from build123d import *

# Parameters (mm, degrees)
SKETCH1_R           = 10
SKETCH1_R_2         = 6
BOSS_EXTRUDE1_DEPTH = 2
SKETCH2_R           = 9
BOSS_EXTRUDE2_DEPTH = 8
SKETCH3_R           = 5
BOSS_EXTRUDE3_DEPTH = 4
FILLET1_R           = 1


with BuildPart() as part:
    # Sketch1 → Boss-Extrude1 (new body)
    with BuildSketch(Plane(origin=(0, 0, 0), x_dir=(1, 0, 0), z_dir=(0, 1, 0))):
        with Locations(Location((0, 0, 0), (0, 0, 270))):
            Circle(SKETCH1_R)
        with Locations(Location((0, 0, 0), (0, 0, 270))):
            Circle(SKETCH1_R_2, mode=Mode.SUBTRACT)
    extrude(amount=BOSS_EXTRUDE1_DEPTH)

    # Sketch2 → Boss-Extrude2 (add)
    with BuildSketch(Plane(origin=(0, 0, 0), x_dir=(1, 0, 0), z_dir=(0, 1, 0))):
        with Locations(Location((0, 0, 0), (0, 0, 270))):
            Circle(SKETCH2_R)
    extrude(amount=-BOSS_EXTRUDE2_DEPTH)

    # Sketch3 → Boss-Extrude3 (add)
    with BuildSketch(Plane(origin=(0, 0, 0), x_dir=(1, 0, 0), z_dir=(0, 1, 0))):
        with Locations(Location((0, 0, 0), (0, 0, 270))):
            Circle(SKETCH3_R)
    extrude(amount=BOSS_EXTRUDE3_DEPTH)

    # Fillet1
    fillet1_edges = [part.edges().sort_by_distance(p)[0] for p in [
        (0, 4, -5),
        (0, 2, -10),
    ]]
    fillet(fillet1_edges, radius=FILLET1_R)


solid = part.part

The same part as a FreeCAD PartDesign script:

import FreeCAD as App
import Part
import Sketcher
from FreeCAD import Vector
Q = App.Units.Quantity


def edges_at(feature, points):
    """Names of the edges that pass closest to the given points."""
    edges = feature.Shape.Edges
    near = lambda p: min(range(len(edges)), key=lambda i: edges[i].distToShape(Part.Vertex(*p))[0])
    return sorted({f"Edge{near(p) + 1}" for p in points})

doc = App.newDocument("Part")
params = doc.addObject("Spreadsheet::Sheet", "Params")
for row, (alias, value) in enumerate([
    ("sketch1_diameter", "20 mm"),
    ("sketch1_diameter2", "12 mm"),
    ("pad1_length", "2 mm"),
    ("sketch2_diameter", "18 mm"),
    ("pad2_length", "8 mm"),
    ("sketch3_diameter", "10 mm"),
    ("pad3_length", "4 mm"),
    ("fillet_radius", "1 mm"),
], start=1):
    params.set(f"A{row}", alias)
    params.set(f"B{row}", "=" + value)
    params.setAlias(f"B{row}", alias)

body = doc.addObject("PartDesign::Body", "Body")

# Sketch on XZ plane
sketch1 = body.newObject("Sketcher::SketchObject", "Sketch")
sketch1.AttachmentSupport = (doc.getObject("XZ_Plane"), [""])
sketch1.MapMode = "FlatFace"
sketch1.addGeometry([
    Part.Circle(Vector(0, 0, 0), Vector(0, 0, 1), 10),
    Part.Circle(Vector(0, 0, 0), Vector(0, 0, 1), 6),
], False)
sketch1.addConstraint([
    Sketcher.Constraint("Coincident", 0, 3, -1, 1),
    Sketcher.Constraint("Coincident", 1, 3, -1, 1),
    Sketcher.Constraint("Diameter", 0, Q("20 mm")),
    Sketcher.Constraint("Diameter", 1, Q("12 mm")),
])
sketch1.setExpression("Constraints[2]", "Params.sketch1_diameter")
sketch1.setExpression("Constraints[3]", "Params.sketch1_diameter2")
pad1 = body.newObject("PartDesign::Pad", "Pad")
pad1.Profile = sketch1
pad1.setExpression("Length", "Params.pad1_length")
pad1.Reversed = True

# Sketch on XZ plane
sketch2 = body.newObject("Sketcher::SketchObject", "Sketch001")
sketch2.AttachmentSupport = (doc.getObject("XZ_Plane"), [""])
sketch2.MapMode = "FlatFace"
sketch2.addGeometry(Part.Circle(Vector(0, 0, 0), Vector(0, 0, 1), 9), False)
sketch2.addConstraint([
    Sketcher.Constraint("Coincident", 0, 3, -1, 1),
    Sketcher.Constraint("Diameter", 0, Q("18 mm")),
])
sketch2.setExpression("Constraints[1]", "Params.sketch2_diameter")
pad2 = body.newObject("PartDesign::Pad", "Pad001")
pad2.Profile = sketch2
pad2.setExpression("Length", "Params.pad2_length")

# Sketch on XZ plane
sketch3 = body.newObject("Sketcher::SketchObject", "Sketch002")
sketch3.AttachmentSupport = (doc.getObject("XZ_Plane"), [""])
sketch3.MapMode = "FlatFace"
sketch3.addGeometry(Part.Circle(Vector(0, 0, 0), Vector(0, 0, 1), 5), False)
sketch3.addConstraint([
    Sketcher.Constraint("Coincident", 0, 3, -1, 1),
    Sketcher.Constraint("Diameter", 0, Q("10 mm")),
])
sketch3.setExpression("Constraints[1]", "Params.sketch3_diameter")
pad3 = body.newObject("PartDesign::Pad", "Pad002")
pad3.Profile = sketch3
pad3.setExpression("Length", "Params.pad3_length")
pad3.Reversed = True
doc.recompute()

fillet = body.newObject("PartDesign::Fillet", "Fillet")
fillet.Base = (pad3, edges_at(pad3, [(0, 4, -5), (0, 2, -10)]))
fillet.setExpression("Radius", "Params.fillet_radius")

doc.recompute()
